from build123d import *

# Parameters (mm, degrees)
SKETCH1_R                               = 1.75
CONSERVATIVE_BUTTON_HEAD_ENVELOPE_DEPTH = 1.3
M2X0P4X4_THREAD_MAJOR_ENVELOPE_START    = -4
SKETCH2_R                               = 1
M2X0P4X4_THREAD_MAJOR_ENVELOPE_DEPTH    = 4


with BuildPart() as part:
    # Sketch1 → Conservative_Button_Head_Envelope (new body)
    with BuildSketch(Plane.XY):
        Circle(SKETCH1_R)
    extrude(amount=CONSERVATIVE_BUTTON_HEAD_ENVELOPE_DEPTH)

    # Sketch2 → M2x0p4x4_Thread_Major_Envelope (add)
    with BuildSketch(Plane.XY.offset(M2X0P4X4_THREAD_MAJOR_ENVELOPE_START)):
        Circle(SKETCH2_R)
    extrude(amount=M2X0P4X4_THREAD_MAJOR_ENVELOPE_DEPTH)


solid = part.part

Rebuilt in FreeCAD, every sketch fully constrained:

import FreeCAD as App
import Part
import Sketcher

doc = App.newDocument("Part")
body = doc.addObject("PartDesign::Body", "Body")

sketch1 = doc.addObject("Sketcher::SketchObject", "Sketch")
body.addObject(sketch1)
sketch1.AttachmentSupport = (doc.XY_Plane, [""])
sketch1.MapMode = "FlatFace"
sketch1.addGeometry(Part.Circle(App.Vector(0, 0, 0), App.Vector(0, 0, 1), 1.75), False)
sketch1.addConstraint(Sketcher.Constraint("Coincident", 0, 3, -1, 1))
sketch1.addConstraint(Sketcher.Constraint("Diameter", 0, 3.5))
pad1 = doc.addObject("PartDesign::Pad", "Pad")
body.addObject(pad1)
pad1.Profile = sketch1
pad1.Length = 1.3

sketch2 = doc.addObject("Sketcher::SketchObject", "Sketch001")
body.addObject(sketch2)
sketch2.AttachmentSupport = (doc.XY_Plane, [""])
sketch2.MapMode = "FlatFace"
sketch2.AttachmentOffset = App.Placement(App.Vector(0, 0, -4), App.Rotation())
sketch2.addGeometry(Part.Circle(App.Vector(0, 0, 0), App.Vector(0, 0, 1), 1), False)
sketch2.addConstraint(Sketcher.Constraint("Coincident", 0, 3, -1, 1))
sketch2.addConstraint(Sketcher.Constraint("Diameter", 0, 2.0))
pad2 = doc.addObject("PartDesign::Pad", "Pad001")
body.addObject(pad2)
pad2.Profile = sketch2
pad2.Length = 4

doc.recompute()
